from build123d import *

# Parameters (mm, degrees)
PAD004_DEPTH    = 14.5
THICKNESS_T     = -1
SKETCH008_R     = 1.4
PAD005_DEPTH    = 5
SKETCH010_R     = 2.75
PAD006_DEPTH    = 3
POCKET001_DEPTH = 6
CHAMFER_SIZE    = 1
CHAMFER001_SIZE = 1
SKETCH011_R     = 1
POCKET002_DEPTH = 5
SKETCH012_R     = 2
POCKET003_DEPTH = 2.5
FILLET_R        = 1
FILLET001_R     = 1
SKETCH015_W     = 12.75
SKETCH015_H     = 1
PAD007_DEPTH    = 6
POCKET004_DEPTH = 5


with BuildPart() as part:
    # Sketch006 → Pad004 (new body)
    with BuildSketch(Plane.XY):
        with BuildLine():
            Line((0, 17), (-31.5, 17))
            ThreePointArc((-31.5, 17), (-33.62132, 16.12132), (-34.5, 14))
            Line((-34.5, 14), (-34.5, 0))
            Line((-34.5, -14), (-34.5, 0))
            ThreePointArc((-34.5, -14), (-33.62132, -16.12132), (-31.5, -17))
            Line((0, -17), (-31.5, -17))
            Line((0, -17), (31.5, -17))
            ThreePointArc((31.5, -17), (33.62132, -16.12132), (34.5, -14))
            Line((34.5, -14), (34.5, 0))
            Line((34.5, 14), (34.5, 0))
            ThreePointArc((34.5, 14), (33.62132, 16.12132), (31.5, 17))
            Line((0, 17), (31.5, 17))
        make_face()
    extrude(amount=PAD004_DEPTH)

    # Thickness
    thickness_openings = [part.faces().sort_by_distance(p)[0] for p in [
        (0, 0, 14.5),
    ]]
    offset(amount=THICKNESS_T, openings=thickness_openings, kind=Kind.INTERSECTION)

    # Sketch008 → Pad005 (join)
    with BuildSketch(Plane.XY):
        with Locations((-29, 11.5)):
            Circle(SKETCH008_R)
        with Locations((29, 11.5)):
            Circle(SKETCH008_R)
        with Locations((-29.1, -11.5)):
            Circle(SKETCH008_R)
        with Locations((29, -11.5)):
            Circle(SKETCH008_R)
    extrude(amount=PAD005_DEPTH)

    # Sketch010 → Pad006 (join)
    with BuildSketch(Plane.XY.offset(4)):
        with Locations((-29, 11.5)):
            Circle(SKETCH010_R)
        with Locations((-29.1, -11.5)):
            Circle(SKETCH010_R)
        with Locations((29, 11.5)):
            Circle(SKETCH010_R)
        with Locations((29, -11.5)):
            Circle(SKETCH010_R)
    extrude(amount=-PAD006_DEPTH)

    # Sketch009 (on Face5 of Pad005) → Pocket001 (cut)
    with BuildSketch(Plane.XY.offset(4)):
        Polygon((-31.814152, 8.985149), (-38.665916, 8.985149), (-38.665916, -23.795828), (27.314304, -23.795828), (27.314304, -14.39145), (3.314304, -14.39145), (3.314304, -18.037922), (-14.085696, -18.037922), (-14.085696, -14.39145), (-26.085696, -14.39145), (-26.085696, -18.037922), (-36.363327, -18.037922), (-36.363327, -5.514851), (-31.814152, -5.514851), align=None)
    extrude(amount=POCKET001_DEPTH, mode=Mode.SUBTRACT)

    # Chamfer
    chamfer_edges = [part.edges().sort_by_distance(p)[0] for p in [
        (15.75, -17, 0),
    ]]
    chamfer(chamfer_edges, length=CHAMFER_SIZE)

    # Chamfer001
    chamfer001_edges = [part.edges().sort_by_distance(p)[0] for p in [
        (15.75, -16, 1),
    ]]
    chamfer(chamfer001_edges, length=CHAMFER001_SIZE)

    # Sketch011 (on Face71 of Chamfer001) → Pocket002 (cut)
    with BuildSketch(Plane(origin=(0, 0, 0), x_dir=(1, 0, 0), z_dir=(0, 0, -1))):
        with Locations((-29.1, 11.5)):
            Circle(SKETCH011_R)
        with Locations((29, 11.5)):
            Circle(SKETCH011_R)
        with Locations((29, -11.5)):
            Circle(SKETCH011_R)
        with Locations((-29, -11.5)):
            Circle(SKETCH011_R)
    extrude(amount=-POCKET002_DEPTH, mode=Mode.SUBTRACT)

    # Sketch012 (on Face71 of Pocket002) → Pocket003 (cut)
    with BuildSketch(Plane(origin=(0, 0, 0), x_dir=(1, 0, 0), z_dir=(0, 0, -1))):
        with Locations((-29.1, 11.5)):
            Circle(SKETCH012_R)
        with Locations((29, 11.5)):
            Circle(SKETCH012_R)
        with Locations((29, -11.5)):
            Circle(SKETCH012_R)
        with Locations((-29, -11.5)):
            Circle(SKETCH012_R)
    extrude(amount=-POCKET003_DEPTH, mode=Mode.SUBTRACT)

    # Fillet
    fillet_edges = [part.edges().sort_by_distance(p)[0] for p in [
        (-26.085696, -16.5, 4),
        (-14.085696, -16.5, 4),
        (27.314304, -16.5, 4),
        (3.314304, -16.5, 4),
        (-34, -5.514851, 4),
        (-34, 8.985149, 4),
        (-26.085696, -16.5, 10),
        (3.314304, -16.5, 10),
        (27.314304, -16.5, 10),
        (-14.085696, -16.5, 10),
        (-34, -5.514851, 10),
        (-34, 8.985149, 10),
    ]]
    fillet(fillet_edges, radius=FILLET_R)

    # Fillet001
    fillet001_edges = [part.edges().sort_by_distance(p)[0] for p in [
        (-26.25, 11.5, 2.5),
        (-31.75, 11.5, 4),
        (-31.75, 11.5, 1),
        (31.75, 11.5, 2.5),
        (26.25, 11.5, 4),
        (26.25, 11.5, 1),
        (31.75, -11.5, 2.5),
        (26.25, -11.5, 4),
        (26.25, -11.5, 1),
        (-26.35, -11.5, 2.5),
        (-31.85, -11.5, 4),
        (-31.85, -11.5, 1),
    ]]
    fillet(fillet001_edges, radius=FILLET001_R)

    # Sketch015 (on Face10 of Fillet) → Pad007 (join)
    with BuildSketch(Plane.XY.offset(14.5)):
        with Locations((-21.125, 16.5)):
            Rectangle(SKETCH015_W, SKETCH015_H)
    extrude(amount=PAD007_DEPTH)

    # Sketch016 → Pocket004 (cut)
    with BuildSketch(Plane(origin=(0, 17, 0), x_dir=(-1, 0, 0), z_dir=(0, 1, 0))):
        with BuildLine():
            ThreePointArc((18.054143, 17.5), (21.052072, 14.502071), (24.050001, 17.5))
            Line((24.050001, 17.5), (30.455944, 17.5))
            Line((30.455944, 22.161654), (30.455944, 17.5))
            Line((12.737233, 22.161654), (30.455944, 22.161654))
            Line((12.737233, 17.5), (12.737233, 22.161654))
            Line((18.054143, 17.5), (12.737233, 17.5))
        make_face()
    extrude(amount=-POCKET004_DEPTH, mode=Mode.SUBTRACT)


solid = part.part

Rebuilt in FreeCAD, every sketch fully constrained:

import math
import FreeCAD as App
import Part
import Sketcher

V = App.Vector


def edges_at(feature, points):
    """Names of the edges that pass closest to the given points."""
    edges = feature.Shape.Edges
    near = lambda p: min(range(len(edges)), key=lambda i: edges[i].distToShape(Part.Vertex(*p))[0])
    return sorted({f"Edge{near(p) + 1}" for p in points})


def faces_at(feature, points):
    """Names of the faces that lie closest to the given points."""
    faces = feature.Shape.Faces
    near = lambda p: min(range(len(faces)), key=lambda i: faces[i].distToShape(Part.Vertex(*p))[0])
    return sorted({f"Face{near(p) + 1}" for p in points})


def add_polygon(sketch, points):
    """Adds a closed chain of lines whose ends are joined by coincident constraints."""
    first, n = sketch.GeometryCount, len(points)
    for a, b in zip(points, points[1:] + points[:1]):
        sketch.addGeometry(Part.LineSegment(App.Vector(*a, 0), App.Vector(*b, 0)), False)
    for i in range(n):
        sketch.addConstraint(Sketcher.Constraint("Coincident", first + i, 2, first + (i + 1) % n, 1))

doc = App.newDocument("Part")
body = doc.addObject("PartDesign::Body", "Body")

sketch1 = body.newObject("Sketcher::SketchObject", "Sketch")
sketch1.AttachmentSupport = (doc.getObject("XY_Plane"), [""])
sketch1.MapMode = "FlatFace"
sketch1.addGeometry([
    Part.ArcOfCircle(Part.Circle(V(-31.499999, 13.999999, 0), V(0, 0, 1), 3.000001), math.radians(90.000022), math.radians(179.999978)),
    Part.LineSegment(V(-34.5, 14, 0), V(-34.5, -14, 0)),
    Part.ArcOfCircle(Part.Circle(V(-31.499999, -13.999999, 0), V(0, 0, 1), 3.000001), math.radians(-179.999978), math.radians(-90.000022)),
    Part.LineSegment(V(-31.5, -17, 0), V(31.5, -17, 0)),
    Part.ArcOfCircle(Part.Circle(V(31.499999, -13.999999, 0), V(0, 0, 1), 3.000001), math.radians(-89.999978), math.radians(-0.000022)),
    Part.LineSegment(V(34.5, -14, 0), V(34.5, 14, 0)),
    Part.ArcOfCircle(Part.Circle(V(31.499999, 13.999999, 0), V(0, 0, 1), 3.000001), math.radians(0.000022), math.radians(89.999978)),
    Part.LineSegment(V(31.5, 17, 0), V(-31.5, 17, 0)),
], False)
sketch1.addConstraint([
    Sketcher.Constraint("Tangent", 0, 2, 1, 1),
    Sketcher.Constraint("Tangent", 1, 2, 2, 1),
    Sketcher.Constraint("Tangent", 2, 2, 3, 1),
    Sketcher.Constraint("Tangent", 3, 2, 4, 1),
    Sketcher.Constraint("Tangent", 4, 2, 5, 1),
    Sketcher.Constraint("Tangent", 5, 2, 6, 1),
    Sketcher.Constraint("Tangent", 6, 2, 7, 1),
    Sketcher.Constraint("Tangent", 7, 2, 0, 1),
    Sketcher.Constraint("Vertical", 1),
    Sketcher.Constraint("Horizontal", 3),
    Sketcher.Constraint("Vertical", 5),
    Sketcher.Constraint("Horizontal", 7),
    Sketcher.Constraint("Equal", 0, 2),
    Sketcher.Constraint("Equal", 2, 4),
    Sketcher.Constraint("Equal", 4, 6),
    Sketcher.Constraint("Symmetric", 0, 3, 4, 3, -1, 1),
    Sketcher.Constraint("Radius", 0, 3.000001),
    Sketcher.Constraint("DistanceX", 3, 1, 3, 2, 63.0),
    Sketcher.Constraint("DistanceY", 1, 2, 1, 1, 28.0),
])
pad1 = body.newObject("PartDesign::Pad", "Pad")
pad1.Profile = sketch1
pad1.Length = 14.5
doc.recompute()

thickness = body.newObject("PartDesign::Thickness", "Thickness")
thickness.Base = (pad1, faces_at(pad1, [(0, 0, 14.5)]))
thickness.Value = 1
thickness.Reversed = True
thickness.Join = "Intersection"

sketch2 = body.newObject("Sketcher::SketchObject", "Sketch001")
sketch2.AttachmentSupport = (doc.getObject("XY_Plane"), [""])
sketch2.MapMode = "FlatFace"
sketch2.addGeometry([
    Part.Circle(V(-29, 11.5, 0), V(0, 0, 1), 1.4),
    Part.Circle(V(29, 11.5, 0), V(0, 0, 1), 1.4),
    Part.Circle(V(-29.1, -11.5, 0), V(0, 0, 1), 1.4),
    Part.Circle(V(29, -11.5, 0), V(0, 0, 1), 1.4),
], False)
sketch2.addConstraint([
    Sketcher.Constraint("Equal", 0, 1),
    Sketcher.Constraint("Equal", 1, 2),
    Sketcher.Constraint("Equal", 2, 3),
    Sketcher.Constraint("Symmetric", 0, 3, 3, 3, -1, 1),
    Sketcher.Constraint("Symmetric", 0, 3, 1, 3, -2),
    Sketcher.Constraint("Horizontal", 2, 3, 3, 3),
    Sketcher.Constraint("Diameter", 0, 2.8),
    Sketcher.Constraint("DistanceX", 0, 3, -1, 1, 29.0),
    Sketcher.Constraint("DistanceY", 2, 3, 0, 3, 23.0),
    Sketcher.Constraint("DistanceX", 2, 3, -1, 1, 29.1),
])
pad2 = body.newObject("PartDesign::Pad", "Pad001")
pad2.Profile = sketch2
pad2.Length = 5

sketch3 = body.newObject("Sketcher::SketchObject", "Sketch002")
sketch3.AttachmentSupport = (doc.getObject("XY_Plane"), [""])
sketch3.MapMode = "FlatFace"
sketch3.AttachmentOffset = App.Placement(V(0, 0, 4), App.Rotation())
sketch3.addGeometry([
    Part.Circle(V(-29, 11.5, 0), V(0, 0, 1), 2.75),
    Part.Circle(V(-29.1, -11.5, 0), V(0, 0, 1), 2.75),
    Part.Circle(V(29, 11.5, 0), V(0, 0, 1), 2.75),
    Part.Circle(V(29, -11.5, 0), V(0, 0, 1), 2.75),
], False)
sketch3.addConstraint([
    Sketcher.Constraint("Equal", 0, 1),
    Sketcher.Constraint("Equal", 1, 2),
    Sketcher.Constraint("Equal", 2, 3),
    Sketcher.Constraint("Symmetric", 0, 3, 3, 3, -1, 1),
    Sketcher.Constraint("Symmetric", 0, 3, 2, 3, -2),
    Sketcher.Constraint("Horizontal", 1, 3, 3, 3),
    Sketcher.Constraint("Diameter", 0, 5.5),
    Sketcher.Constraint("DistanceX", 0, 3, -1, 1, 29.0),
    Sketcher.Constraint("DistanceY", 1, 3, 0, 3, 23.0),
    Sketcher.Constraint("DistanceX", 1, 3, -1, 1, 29.1),
])
pad3 = body.newObject("PartDesign::Pad", "Pad002")
pad3.Profile = sketch3
pad3.Length = 3
pad3.Reversed = True

sketch4 = body.newObject("Sketcher::SketchObject", "Sketch003")
sketch4.AttachmentSupport = (doc.getObject("XY_Plane"), [""])
sketch4.MapMode = "FlatFace"
sketch4.AttachmentOffset = App.Placement(V(0, 0, 4), App.Rotation())
add_polygon(sketch4, [(-31.814152, 8.985149), (-38.665916, 8.985149), (-38.665916, -23.795828), (27.314304, -23.795828), (27.314304, -14.39145), (3.314304, -14.39145), (3.314304, -18.037922), (-14.085696, -18.037922), (-14.085696, -14.39145), (-26.085696, -14.39145), (-26.085696, -18.037922), (-36.363327, -18.037922), (-36.363327, -5.514851), (-31.814152, -5.514851)])
sketch4.addConstraint([
    Sketcher.Constraint("Horizontal", 0),
    Sketcher.Constraint("Vertical", 1),
    Sketcher.Constraint("Horizontal", 2),
    Sketcher.Constraint("Vertical", 3),
    Sketcher.Constraint("Horizontal", 4),
    Sketcher.Constraint("Vertical", 5),
    Sketcher.Constraint("Horizontal", 6),
    Sketcher.Constraint("Vertical", 7),
    Sketcher.Constraint("Horizontal", 8),
    Sketcher.Constraint("Vertical", 9),
    Sketcher.Constraint("Horizontal", 10),
    Sketcher.Constraint("Vertical", 11),
    Sketcher.Constraint("Horizontal", 12),
    Sketcher.Constraint("Vertical", 13),
    Sketcher.Constraint("Horizontal", 4, 2, 7, 2),
    Sketcher.Constraint("Horizontal", 6, 2, 9, 2),
    Sketcher.Constraint("DistanceX", 4, 2, 4, 1, 24.0),
    Sketcher.Constraint("DistanceX", 8, 2, 8, 1, 12.0),
    Sketcher.Constraint("DistanceX", 6, 2, 6, 1, 17.4),
    Sketcher.Constraint("DistanceY", 13, 1, 13, 2, 14.5),
    Sketcher.Constraint("DistanceX", 2, 1, 2, 2, 65.98022),
    Sketcher.Constraint("DistanceX", 10, 2, 10, 1, 10.277631),
    Sketcher.Constraint("DistanceY", 5, 2, 5, 1, 3.646472),
    Sketcher.Constraint("DistanceY", 11, 1, 11, 2, 12.523071),
    Sketcher.Constraint("DistanceX", 0, 2, 0, 1, 6.851764),
    Sketcher.Constraint("DistanceY", 1, 2, 1, 1, 32.780977),
    Sketcher.Constraint("DistanceY", -1, 1, 0, 2, 8.985149),
    Sketcher.Constraint("DistanceX", 12, 2, -1, 1, 31.814152),
])
pocket1 = body.newObject("PartDesign::Pocket", "Pocket")
pocket1.Profile = sketch4
pocket1.Length = 6
pocket1.Reversed = True
doc.recompute()

chamfer = body.newObject("PartDesign::Chamfer", "Chamfer")
chamfer.Base = (pocket1, edges_at(pocket1, [(0, -17, 0)]))
chamfer.Size = 1
doc.recompute()

chamfer2 = body.newObject("PartDesign::Chamfer", "Chamfer001")
chamfer2.Base = (chamfer, edges_at(chamfer, [(0, -16, 1)]))
chamfer2.Size = 1

sketch5 = body.newObject("Sketcher::SketchObject", "Sketch004")
sketch5.AttachmentSupport = (doc.getObject("XY_Plane"), [""])
sketch5.MapMode = "FlatFace"
sketch5.addGeometry([
    Part.Circle(V(-29.1, -11.5, 0), V(0, 0, 1), 1),
    Part.Circle(V(29, -11.5, 0), V(0, 0, 1), 1),
    Part.Circle(V(29, 11.5, 0), V(0, 0, 1), 1),
    Part.Circle(V(-29, 11.5, 0), V(0, 0, 1), 1),
], False)
sketch5.addConstraint([
    Sketcher.Constraint("Equal", 0, 1),
    Sketcher.Constraint("Equal", 1, 2),
    Sketcher.Constraint("Equal", 2, 3),
    Sketcher.Constraint("Symmetric", 1, 3, 3, 3, -1, 1),
    Sketcher.Constraint("Symmetric", 2, 3, 3, 3, -2),
    Sketcher.Constraint("Horizontal", 0, 3, 1, 3),
    Sketcher.Constraint("Diameter", 0, 2.0),
    Sketcher.Constraint("DistanceX", -1, 1, 1, 3, 29.0),
    Sketcher.Constraint("DistanceY", 1, 3, 2, 3, 23.0),
    Sketcher.Constraint("DistanceX", 0, 3, -1, 1, 29.1),
])
pocket2 = body.newObject("PartDesign::Pocket", "Pocket001")
pocket2.Profile = sketch5
pocket2.Length = 5
pocket2.Reversed = True

sketch6 = body.newObject("Sketcher::SketchObject", "Sketch005")
sketch6.AttachmentSupport = (doc.getObject("XY_Plane"), [""])
sketch6.MapMode = "FlatFace"
sketch6.addGeometry([
    Part.Circle(V(-29.1, -11.5, 0), V(0, 0, 1), 2),
    Part.Circle(V(29, -11.5, 0), V(0, 0, 1), 2),
    Part.Circle(V(29, 11.5, 0), V(0, 0, 1), 2),
    Part.Circle(V(-29, 11.5, 0), V(0, 0, 1), 2),
], False)
sketch6.addConstraint([
    Sketcher.Constraint("Equal", 0, 1),
    Sketcher.Constraint("Equal", 1, 2),
    Sketcher.Constraint("Equal", 2, 3),
    Sketcher.Constraint("Symmetric", 1, 3, 3, 3, -1, 1),
    Sketcher.Constraint("Symmetric", 2, 3, 3, 3, -2),
    Sketcher.Constraint("Horizontal", 0, 3, 1, 3),
    Sketcher.Constraint("Diameter", 0, 4.0),
    Sketcher.Constraint("DistanceX", -1, 1, 1, 3, 29.0),
    Sketcher.Constraint("DistanceY", 1, 3, 2, 3, 23.0),
    Sketcher.Constraint("DistanceX", 0, 3, -1, 1, 29.1),
])
pocket3 = body.newObject("PartDesign::Pocket", "Pocket002")
pocket3.Profile = sketch6
pocket3.Length = 2.5
pocket3.Reversed = True
doc.recompute()

fillet = body.newObject("PartDesign::Fillet", "Fillet")
fillet.Base = (pocket3, edges_at(pocket3, [
    (-26.086, -16.5, 4),
    (-14.086, -16.5, 4),
    (27.314, -16.5, 4),
    (3.314, -16.5, 4),
    (-34, -5.515, 4),
    (-34, 8.985, 4),
    (-26.086, -16.5, 10),
    (3.314, -16.5, 10),
    (27.314, -16.5, 10),
    (-14.086, -16.5, 10),
    (-34, -5.515, 10),
    (-34, 8.985, 10),
]))
fillet.Radius = 1
doc.recompute()

fillet2 = body.newObject("PartDesign::Fillet", "Fillet001")
fillet2.Base = (fillet, edges_at(fillet, [
    (-26.25, 11.5, 2.5),
    (-31.75, 11.5, 4),
    (-31.75, 11.5, 1),
    (31.75, 11.5, 2.5),
    (26.25, 11.5, 4),
    (26.25, 11.5, 1),
    (31.75, -11.5, 2.5),
    (26.25, -11.5, 4),
    (26.25, -11.5, 1),
    (-26.35, -11.5, 2.5),
    (-31.85, -11.5, 4),
    (-31.85, -11.5, 1),
]))
fillet2.Radius = 1

sketch7 = body.newObject("Sketcher::SketchObject", "Sketch006")
sketch7.AttachmentSupport = (doc.getObject("XY_Plane"), [""])
sketch7.MapMode = "FlatFace"
sketch7.AttachmentOffset = App.Placement(V(0, 0, 14.5), App.Rotation())
add_polygon(sketch7, [(-27.5, 17), (-27.5, 16), (-14.75, 16), (-14.75, 17)])
sketch7.addConstraint([
    Sketcher.Constraint("Vertical", 0),
    Sketcher.Constraint("Horizontal", 1),
    Sketcher.Constraint("Vertical", 2),
    Sketcher.Constraint("Horizontal", 3),
    Sketcher.Constraint("DistanceY", 0, 2, 0, 1, 1.0),
    Sketcher.Constraint("DistanceY", -1, 1, 0, 2, 16.0),
    Sketcher.Constraint("DistanceX", 1, 1, 1, 2, 12.75),
    Sketcher.Constraint("DistanceX", 0, 2, -1, 1, 27.5),
])
pad4 = body.newObject("PartDesign::Pad", "Pad003")
pad4.Profile = sketch7
pad4.Length = 6

sketch8 = body.newObject("Sketcher::SketchObject", "Sketch007")
sketch8.AttachmentSupport = (doc.getObject("XZ_Plane"), [""])
sketch8.MapMode = "FlatFace"
sketch8.AttachmentOffset = App.Placement(V(0, 0, -17), App.Rotation())
sketch8.addGeometry([
    Part.ArcOfCircle(Part.Circle(V(-21.052072, 17.5, 0), V(0, 0, 1), 2.997929), math.radians(180), math.radians(360)),
    Part.LineSegment(V(-24.050001, 17.5, 0), V(-30.455944, 17.5, 0)),
    Part.LineSegment(V(-30.455944, 17.5, 0), V(-30.455944, 22.161654, 0)),
    Part.LineSegment(V(-30.455944, 22.161654, 0), V(-12.737233, 22.161654, 0)),
    Part.LineSegment(V(-12.737233, 22.161654, 0), V(-12.737233, 17.5, 0)),
    Part.LineSegment(V(-12.737233, 17.5, 0), V(-18.054143, 17.5, 0)),
], False)
sketch8.addConstraint([
    Sketcher.Constraint("Coincident", 0, 1, 1, 1),
    Sketcher.Constraint("Coincident", 1, 2, 2, 1),
    Sketcher.Constraint("Coincident", 2, 2, 3, 1),
    Sketcher.Constraint("Coincident", 3, 2, 4, 1),
    Sketcher.Constraint("Coincident", 4, 2, 5, 1),
    Sketcher.Constraint("Coincident", 5, 2, 0, 2),
    Sketcher.Constraint("Horizontal", 1),
    Sketcher.Constraint("Vertical", 2),
    Sketcher.Constraint("Horizontal", 3),
    Sketcher.Constraint("Vertical", 4),
    Sketcher.Constraint("Horizontal", 5),
    Sketcher.Constraint("Horizontal", 1, 2, 4, 2),
    Sketcher.Constraint("DistanceY", -1, 1, 0, 3, 17.5),
    Sketcher.Constraint("DistanceY", -1, 1, 0, 1, 17.5),
    Sketcher.Constraint("DistanceX", 0, 1, -1, 1, 24.050001),
    Sketcher.Constraint("Radius", 0, 2.997929),
    Sketcher.Constraint("DistanceX", 3, 1, 3, 2, 17.718711),
    Sketcher.Constraint("DistanceX", 5, 2, 5, 1, 5.31691),
    Sketcher.Constraint("DistanceY", 2, 1, 2, 2, 4.661654),
])
pocket4 = body.newObject("PartDesign::Pocket", "Pocket003")
pocket4.Profile = sketch8
pocket4.Length = 5
pocket4.Reversed = True

doc.recompute()
